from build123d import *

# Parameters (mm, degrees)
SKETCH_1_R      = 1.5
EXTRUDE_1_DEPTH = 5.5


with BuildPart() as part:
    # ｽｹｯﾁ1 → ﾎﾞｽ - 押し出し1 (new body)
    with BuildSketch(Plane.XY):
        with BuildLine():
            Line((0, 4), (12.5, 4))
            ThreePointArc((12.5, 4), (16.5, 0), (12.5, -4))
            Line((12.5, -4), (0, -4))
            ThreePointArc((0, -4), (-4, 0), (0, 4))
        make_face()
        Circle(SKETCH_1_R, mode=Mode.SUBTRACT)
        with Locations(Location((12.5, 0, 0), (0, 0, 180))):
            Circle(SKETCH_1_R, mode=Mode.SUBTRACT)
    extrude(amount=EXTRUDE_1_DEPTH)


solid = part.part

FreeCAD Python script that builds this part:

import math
import FreeCAD as App
import Part
import Sketcher
Q = App.Units.Quantity

doc = App.newDocument("Part")
body = doc.addObject("PartDesign::Body", "Body")

# Sketch on XY plane
sketch1 = body.newObject("Sketcher::SketchObject", "Sketch")
sketch1.AttachmentSupport = (doc.getObject("XY_Plane"), [""])
sketch1.MapMode = "FlatFace"
sketch1.addGeometry(Part.LineSegment(App.Vector(12.5, 4, 0), App.Vector(0, 4, 0)), False)
sketch1.addGeometry(Part.ArcOfCircle(Part.Circle(App.Vector(0, 0, 0), App.Vector(0, 0, 1), 4), math.radians(90), math.radians(270)), False)
sketch1.addGeometry(Part.LineSegment(App.Vector(0, -4, 0), App.Vector(12.5, -4, 0)), False)
sketch1.addGeometry(Part.ArcOfCircle(Part.Circle(App.Vector(12.5, 0, 0), App.Vector(0, 0, 1), 4), math.radians(-90), math.radians(90)), False)
sketch1.addGeometry(Part.Circle(App.Vector(12.5, 0, 0), App.Vector(0, 0, 1), 1.5), False)
sketch1.addGeometry(Part.Circle(App.Vector(0, 0, 0), App.Vector(0, 0, 1), 1.5), False)
sketch1.addConstraint(Sketcher.Constraint("Tangent", 0, 2, 1, 1))
sketch1.addConstraint(Sketcher.Constraint("Tangent", 1, 2, 2, 1))
sketch1.addConstraint(Sketcher.Constraint("Tangent", 2, 2, 3, 1))
sketch1.addConstraint(Sketcher.Constraint("Tangent", 3, 2, 0, 1))
sketch1.addConstraint(Sketcher.Constraint("Horizontal", 0))
sketch1.addConstraint(Sketcher.Constraint("Horizontal", 2))
sketch1.addConstraint(Sketcher.Constraint("Coincident", 1, 3, -1, 1))
sketch1.addConstraint(Sketcher.Constraint("Coincident", 5, 3, -1, 1))
sketch1.addConstraint(Sketcher.Constraint("Coincident", 4, 3, 3, 3))
sketch1.addConstraint(Sketcher.Constraint("Equal", 4, 5))
sketch1.addConstraint(Sketcher.Constraint("Diameter", 4, Q("3 mm")))
sketch1.addConstraint(Sketcher.Constraint("Radius", 1, Q("4 mm")))
sketch1.addConstraint(Sketcher.Constraint("DistanceX", 0, 2, 0, 1, Q("12.5 mm")))
pad1 = body.newObject("PartDesign::Pad", "Pad")
pad1.Profile = sketch1
pad1.Length = 5.5

doc.recompute()
